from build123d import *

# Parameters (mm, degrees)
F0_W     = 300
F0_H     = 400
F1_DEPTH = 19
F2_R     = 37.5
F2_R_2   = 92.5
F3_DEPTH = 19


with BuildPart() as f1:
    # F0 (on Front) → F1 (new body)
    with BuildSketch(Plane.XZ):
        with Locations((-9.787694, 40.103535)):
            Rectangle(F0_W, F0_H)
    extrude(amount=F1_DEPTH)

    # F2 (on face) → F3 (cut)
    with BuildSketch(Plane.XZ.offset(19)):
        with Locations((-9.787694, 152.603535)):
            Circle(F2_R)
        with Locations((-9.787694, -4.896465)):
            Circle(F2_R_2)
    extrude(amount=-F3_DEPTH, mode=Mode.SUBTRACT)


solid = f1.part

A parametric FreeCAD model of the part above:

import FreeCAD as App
import Part
import Sketcher

V = App.Vector


def add_polygon(sketch, points):
    """Adds a closed chain of lines whose ends are joined by coincident constraints."""
    first, n = sketch.GeometryCount, len(points)
    for a, b in zip(points, points[1:] + points[:1]):
        sketch.addGeometry(Part.LineSegment(App.Vector(*a, 0), App.Vector(*b, 0)), False)
    for i in range(n):
        sketch.addConstraint(Sketcher.Constraint("Coincident", first + i, 2, first + (i + 1) % n, 1))

doc = App.newDocument("Part")
params = doc.addObject("Spreadsheet::Sheet", "Params")
for row, (alias, value) in enumerate([
    ("sketch1_width", "300 mm"),
    ("sketch1_height", "400 mm"),
    ("pad1_length", "19 mm"),
    ("sketch2_diameter", "75 mm"),
    ("sketch2_diameter2", "185 mm"),
    ("pocket1_length", "19 mm"),
], start=1):
    params.set(f"A{row}", alias)
    params.set(f"B{row}", "=" + value)
    params.setAlias(f"B{row}", alias)

body = doc.addObject("PartDesign::Body", "Body")

sketch1 = doc.addObject("Sketcher::SketchObject", "Sketch")
body.addObject(sketch1)
sketch1.AttachmentSupport = (doc.XZ_Plane, [""])
sketch1.MapMode = "FlatFace"
add_polygon(sketch1, [(-159.787694, 240.103535), (-159.787694, -159.896465), (140.212306, -159.896465), (140.212306, 240.103535)])
sketch1.addConstraint([
    Sketcher.Constraint("Vertical", 0),
    Sketcher.Constraint("Horizontal", 1),
    Sketcher.Constraint("Vertical", 2),
    Sketcher.Constraint("Horizontal", 3),
    Sketcher.Constraint("DistanceX", 1, 1, 1, 2, 300.0),
    Sketcher.Constraint("DistanceY", 0, 2, 0, 1, 400.0),
    Sketcher.Constraint("DistanceX", 0, 2, -1, 1, 159.787694),
    Sketcher.Constraint("DistanceY", 0, 2, -1, 1, 159.896465),
])
sketch1.setExpression("Constraints[8]", "Params.sketch1_width")
sketch1.setExpression("Constraints[9]", "Params.sketch1_height")
pad1 = doc.addObject("PartDesign::Pad", "Pad")
body.addObject(pad1)
pad1.Profile = sketch1
pad1.setExpression("Length", "Params.pad1_length")

sketch2 = doc.addObject("Sketcher::SketchObject", "Sketch001")
body.addObject(sketch2)
sketch2.AttachmentSupport = (doc.XZ_Plane, [""])
sketch2.MapMode = "FlatFace"
sketch2.AttachmentOffset = App.Placement(V(0, 0, 19), App.Rotation())
sketch2.addGeometry([
    Part.Circle(V(-9.787694, 152.603535, 0), V(0, 0, 1), 37.5),
    Part.Circle(V(-9.787694, -4.896465, 0), V(0, 0, 1), 92.5),
], False)
sketch2.addConstraint([
    Sketcher.Constraint("Vertical", 0, 3, 1, 3),
    Sketcher.Constraint("Diameter", 0, 75.0),
    Sketcher.Constraint("Diameter", 1, 185.0),
    Sketcher.Constraint("DistanceY", 1, 3, 0, 3, 157.5),
    Sketcher.Constraint("DistanceX", 0, 3, -1, 1, 9.787694),
    Sketcher.Constraint("DistanceY", -1, 1, 0, 3, 152.603535),
])
sketch2.setExpression("Constraints[1]", "Params.sketch2_diameter")
sketch2.setExpression("Constraints[2]", "Params.sketch2_diameter2")
pocket1 = doc.addObject("PartDesign::Pocket", "Pocket")
body.addObject(pocket1)
pocket1.Profile = sketch2
pocket1.setExpression("Length", "Params.pocket1_length")

doc.recompute()
